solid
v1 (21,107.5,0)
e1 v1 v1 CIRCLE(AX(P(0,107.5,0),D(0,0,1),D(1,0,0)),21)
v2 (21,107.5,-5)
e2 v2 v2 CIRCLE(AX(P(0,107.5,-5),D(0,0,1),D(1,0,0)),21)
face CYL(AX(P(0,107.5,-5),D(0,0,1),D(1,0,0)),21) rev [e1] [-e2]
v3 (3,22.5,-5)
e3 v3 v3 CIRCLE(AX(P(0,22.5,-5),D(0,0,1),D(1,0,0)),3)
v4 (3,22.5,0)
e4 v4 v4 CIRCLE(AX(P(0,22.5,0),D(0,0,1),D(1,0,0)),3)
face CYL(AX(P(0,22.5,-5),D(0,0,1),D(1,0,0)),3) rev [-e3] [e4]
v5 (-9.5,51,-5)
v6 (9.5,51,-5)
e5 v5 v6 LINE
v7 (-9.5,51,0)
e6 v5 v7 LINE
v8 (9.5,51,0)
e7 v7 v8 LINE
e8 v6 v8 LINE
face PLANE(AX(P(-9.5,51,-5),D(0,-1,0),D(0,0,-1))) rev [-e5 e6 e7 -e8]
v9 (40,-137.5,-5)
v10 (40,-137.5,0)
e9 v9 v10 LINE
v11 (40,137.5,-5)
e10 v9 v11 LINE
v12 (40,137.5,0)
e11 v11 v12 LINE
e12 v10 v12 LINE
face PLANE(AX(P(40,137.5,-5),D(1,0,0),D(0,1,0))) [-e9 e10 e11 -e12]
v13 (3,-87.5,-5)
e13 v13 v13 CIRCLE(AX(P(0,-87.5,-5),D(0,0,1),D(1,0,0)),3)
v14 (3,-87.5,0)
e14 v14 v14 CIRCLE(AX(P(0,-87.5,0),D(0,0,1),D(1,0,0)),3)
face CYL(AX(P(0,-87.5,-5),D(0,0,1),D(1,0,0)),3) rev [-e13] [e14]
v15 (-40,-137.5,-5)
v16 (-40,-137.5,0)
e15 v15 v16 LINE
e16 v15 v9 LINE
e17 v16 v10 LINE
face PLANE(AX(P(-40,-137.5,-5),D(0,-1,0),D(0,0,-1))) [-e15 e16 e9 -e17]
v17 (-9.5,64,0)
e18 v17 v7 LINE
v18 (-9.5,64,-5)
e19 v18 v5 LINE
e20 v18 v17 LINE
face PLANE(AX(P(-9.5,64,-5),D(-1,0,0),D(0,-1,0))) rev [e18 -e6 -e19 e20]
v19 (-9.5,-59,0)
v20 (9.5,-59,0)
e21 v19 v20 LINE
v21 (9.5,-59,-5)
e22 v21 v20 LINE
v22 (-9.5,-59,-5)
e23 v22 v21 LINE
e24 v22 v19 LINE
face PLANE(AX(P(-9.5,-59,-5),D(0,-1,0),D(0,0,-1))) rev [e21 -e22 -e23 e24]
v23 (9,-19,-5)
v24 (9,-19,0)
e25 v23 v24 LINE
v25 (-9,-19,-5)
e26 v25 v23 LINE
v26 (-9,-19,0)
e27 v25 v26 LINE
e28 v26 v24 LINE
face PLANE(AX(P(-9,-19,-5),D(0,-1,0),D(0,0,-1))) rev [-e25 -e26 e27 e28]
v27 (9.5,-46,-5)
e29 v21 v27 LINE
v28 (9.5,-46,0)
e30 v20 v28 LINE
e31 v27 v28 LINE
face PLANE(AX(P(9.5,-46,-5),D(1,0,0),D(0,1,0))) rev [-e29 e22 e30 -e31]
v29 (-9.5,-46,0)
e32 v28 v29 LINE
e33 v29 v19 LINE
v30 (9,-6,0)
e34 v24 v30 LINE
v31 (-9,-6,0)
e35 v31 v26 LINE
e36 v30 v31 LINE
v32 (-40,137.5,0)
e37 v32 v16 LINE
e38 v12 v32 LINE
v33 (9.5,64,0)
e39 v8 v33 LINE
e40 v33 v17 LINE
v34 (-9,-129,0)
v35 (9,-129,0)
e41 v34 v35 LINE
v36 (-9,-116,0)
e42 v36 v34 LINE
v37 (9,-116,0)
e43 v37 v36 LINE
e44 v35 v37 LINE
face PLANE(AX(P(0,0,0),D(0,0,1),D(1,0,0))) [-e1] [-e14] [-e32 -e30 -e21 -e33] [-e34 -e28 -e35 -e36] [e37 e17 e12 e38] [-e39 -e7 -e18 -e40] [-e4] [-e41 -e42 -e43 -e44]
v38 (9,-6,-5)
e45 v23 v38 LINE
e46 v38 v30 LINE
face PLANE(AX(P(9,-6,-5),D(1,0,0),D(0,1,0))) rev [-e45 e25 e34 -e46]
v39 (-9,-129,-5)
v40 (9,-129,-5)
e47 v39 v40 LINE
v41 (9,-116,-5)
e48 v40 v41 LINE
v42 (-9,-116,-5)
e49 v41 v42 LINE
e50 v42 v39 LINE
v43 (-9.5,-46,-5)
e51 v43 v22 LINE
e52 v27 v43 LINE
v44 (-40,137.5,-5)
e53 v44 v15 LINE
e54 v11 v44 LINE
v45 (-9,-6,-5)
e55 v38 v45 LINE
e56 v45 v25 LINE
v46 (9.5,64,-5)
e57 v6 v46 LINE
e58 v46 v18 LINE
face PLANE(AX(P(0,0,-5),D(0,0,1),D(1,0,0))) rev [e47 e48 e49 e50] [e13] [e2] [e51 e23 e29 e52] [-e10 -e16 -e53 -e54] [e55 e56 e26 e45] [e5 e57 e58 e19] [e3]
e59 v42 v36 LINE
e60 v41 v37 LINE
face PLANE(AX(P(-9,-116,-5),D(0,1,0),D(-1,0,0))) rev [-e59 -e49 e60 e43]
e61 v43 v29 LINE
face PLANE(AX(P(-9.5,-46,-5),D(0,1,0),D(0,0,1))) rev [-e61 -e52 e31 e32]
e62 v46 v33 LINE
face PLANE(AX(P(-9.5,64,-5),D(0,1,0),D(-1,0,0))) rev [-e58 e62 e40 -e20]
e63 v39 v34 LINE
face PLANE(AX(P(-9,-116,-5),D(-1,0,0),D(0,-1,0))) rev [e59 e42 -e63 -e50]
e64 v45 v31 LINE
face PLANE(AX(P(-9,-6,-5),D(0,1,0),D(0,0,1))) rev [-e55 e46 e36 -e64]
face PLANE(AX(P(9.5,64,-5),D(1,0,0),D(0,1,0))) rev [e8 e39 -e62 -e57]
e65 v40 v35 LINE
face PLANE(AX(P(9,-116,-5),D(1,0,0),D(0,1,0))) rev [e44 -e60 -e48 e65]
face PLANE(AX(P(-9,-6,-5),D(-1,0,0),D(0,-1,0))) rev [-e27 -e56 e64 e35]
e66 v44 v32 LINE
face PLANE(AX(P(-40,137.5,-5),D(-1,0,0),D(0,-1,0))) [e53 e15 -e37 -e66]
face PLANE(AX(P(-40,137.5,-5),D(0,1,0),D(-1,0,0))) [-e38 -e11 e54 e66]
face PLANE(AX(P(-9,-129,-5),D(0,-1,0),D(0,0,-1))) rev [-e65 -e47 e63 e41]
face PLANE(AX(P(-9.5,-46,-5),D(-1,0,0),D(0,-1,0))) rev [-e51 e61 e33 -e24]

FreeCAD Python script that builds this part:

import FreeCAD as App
import Part
import Sketcher


def add_polygon(sketch, points):
    """Adds a closed chain of lines whose ends are joined by coincident constraints."""
    first, n = sketch.GeometryCount, len(points)
    for a, b in zip(points, points[1:] + points[:1]):
        sketch.addGeometry(Part.LineSegment(App.Vector(*a, 0), App.Vector(*b, 0)), False)
    for i in range(n):
        sketch.addConstraint(Sketcher.Constraint("Coincident", first + i, 2, first + (i + 1) % n, 1))

doc = App.newDocument("Part")
body = doc.addObject("PartDesign::Body", "Body")

sketch1 = body.newObject("Sketcher::SketchObject", "Sketch")
sketch1.AttachmentSupport = (doc.getObject("XY_Plane"), [""])
sketch1.MapMode = "FlatFace"
add_polygon(sketch1, [(-40, 138), (-40, -138), (40, -138), (40, 138)])
sketch1.addConstraint(Sketcher.Constraint("Vertical", 0))
sketch1.addConstraint(Sketcher.Constraint("Horizontal", 1))
sketch1.addConstraint(Sketcher.Constraint("Vertical", 2))
sketch1.addConstraint(Sketcher.Constraint("Horizontal", 3))
sketch1.addConstraint(Sketcher.Constraint("Symmetric", 0, 2, 2, 2, -1, 1))
sketch1.addConstraint(Sketcher.Constraint("DistanceX", 1, 1, 1, 2, 80.0))
sketch1.addConstraint(Sketcher.Constraint("DistanceY", 0, 2, 0, 1, 275.0))
pad1 = body.newObject("PartDesign::Pad", "Pad")
pad1.Profile = sketch1
pad1.Length = 5
pad1.Reversed = True

sketch2 = body.newObject("Sketcher::SketchObject", "Sketch001")
sketch2.AttachmentSupport = (doc.getObject("XY_Plane"), [""])
sketch2.MapMode = "FlatFace"
sketch2.addGeometry(Part.Circle(App.Vector(0, 107.5, 0), App.Vector(0, 0, 1), 21), False)
sketch2.addGeometry(Part.Circle(App.Vector(0, 22.5, 0), App.Vector(0, 0, 1), 3), False)
sketch2.addGeometry(Part.Circle(App.Vector(0, -87.5, 0), App.Vector(0, 0, 1), 3), False)
add_polygon(sketch2, [(-9, -116), (-9, -129), (9, -129), (9, -116)])
add_polygon(sketch2, [(-9.5, 64), (-9.5, 51), (9.5, 51), (9.5, 64)])
add_polygon(sketch2, [(-9, -6), (-9, -19), (9, -19), (9, -6)])
add_polygon(sketch2, [(-9.5, -46), (-9.5, -59), (9.5, -59), (9.5, -46)])
sketch2.addConstraint(Sketcher.Constraint("Vertical", 3))
sketch2.addConstraint(Sketcher.Constraint("Horizontal", 4))
sketch2.addConstraint(Sketcher.Constraint("Vertical", 5))
sketch2.addConstraint(Sketcher.Constraint("Horizontal", 6))
sketch2.addConstraint(Sketcher.Constraint("Vertical", 7))
sketch2.addConstraint(Sketcher.Constraint("Horizontal", 8))
sketch2.addConstraint(Sketcher.Constraint("Vertical", 9))
sketch2.addConstraint(Sketcher.Constraint("Horizontal", 10))
sketch2.addConstraint(Sketcher.Constraint("Vertical", 11))
sketch2.addConstraint(Sketcher.Constraint("Horizontal", 12))
sketch2.addConstraint(Sketcher.Constraint("Vertical", 13))
sketch2.addConstraint(Sketcher.Constraint("Horizontal", 14))
sketch2.addConstraint(Sketcher.Constraint("Vertical", 15))
sketch2.addConstraint(Sketcher.Constraint("Horizontal", 16))
sketch2.addConstraint(Sketcher.Constraint("Vertical", 17))
sketch2.addConstraint(Sketcher.Constraint("Horizontal", 18))
sketch2.addConstraint(Sketcher.Constraint("Equal", 1, 2))
sketch2.addConstraint(Sketcher.Constraint("PointOnObject", 0, 3, -2))
sketch2.addConstraint(Sketcher.Constraint("PointOnObject", 1, 3, -2))
sketch2.addConstraint(Sketcher.Constraint("PointOnObject", 2, 3, -2))
sketch2.addConstraint(Sketcher.Constraint("Vertical", 6, 2, 11, 2))
sketch2.addConstraint(Sketcher.Constraint("Vertical", 5, 2, 12, 2))
sketch2.addConstraint(Sketcher.Constraint("Vertical", 10, 2, 15, 2))
sketch2.addConstraint(Sketcher.Constraint("Vertical", 9, 2, 16, 2))
sketch2.addConstraint(Sketcher.Constraint("Equal", 5, 7))
sketch2.addConstraint(Sketcher.Constraint("Equal", 9, 11))
sketch2.addConstraint(Sketcher.Constraint("Equal", 13, 15))
sketch2.addConstraint(Sketcher.Constraint("Diameter", 0, 42.0))
sketch2.addConstraint(Sketcher.Constraint("Diameter", 1, 6.0))
sketch2.addConstraint(Sketcher.Constraint("DistanceX", 4, 1, 4, 2, 18.0))
sketch2.addConstraint(Sketcher.Constraint("DistanceX", 8, 1, 8, 2, 19.0))
sketch2.addConstraint(Sketcher.Constraint("DistanceY", 3, 2, 3, 1, 13.0))
sketch2.addConstraint(Sketcher.Constraint("DistanceX", 3, 2, -1, 1, 9.0))
sketch2.addConstraint(Sketcher.Constraint("DistanceY", 3, 2, -1, 1, 129.0))
sketch2.addConstraint(Sketcher.Constraint("DistanceY", -1, 1, 7, 2, 51.0))
sketch2.addConstraint(Sketcher.Constraint("DistanceY", 11, 2, -1, 1, 19.0))
sketch2.addConstraint(Sketcher.Constraint("DistanceY", 15, 2, -1, 1, 59.0))
sketch2.addConstraint(Sketcher.Constraint("DistanceY", 1, 3, 0, 3, 85.0))
sketch2.addConstraint(Sketcher.Constraint("DistanceY", 2, 3, 1, 3, 110.0))
sketch2.addConstraint(Sketcher.Constraint("DistanceY", -1, 1, 0, 3, 107.5))
sketch2.addConstraint(Sketcher.Constraint("DistanceX", 7, 2, -1, 1, 9.5))
pocket1 = body.newObject("PartDesign::Pocket", "Pocket")
pocket1.Profile = sketch2
pocket1.Type = "ThroughAll"

doc.recompute()
